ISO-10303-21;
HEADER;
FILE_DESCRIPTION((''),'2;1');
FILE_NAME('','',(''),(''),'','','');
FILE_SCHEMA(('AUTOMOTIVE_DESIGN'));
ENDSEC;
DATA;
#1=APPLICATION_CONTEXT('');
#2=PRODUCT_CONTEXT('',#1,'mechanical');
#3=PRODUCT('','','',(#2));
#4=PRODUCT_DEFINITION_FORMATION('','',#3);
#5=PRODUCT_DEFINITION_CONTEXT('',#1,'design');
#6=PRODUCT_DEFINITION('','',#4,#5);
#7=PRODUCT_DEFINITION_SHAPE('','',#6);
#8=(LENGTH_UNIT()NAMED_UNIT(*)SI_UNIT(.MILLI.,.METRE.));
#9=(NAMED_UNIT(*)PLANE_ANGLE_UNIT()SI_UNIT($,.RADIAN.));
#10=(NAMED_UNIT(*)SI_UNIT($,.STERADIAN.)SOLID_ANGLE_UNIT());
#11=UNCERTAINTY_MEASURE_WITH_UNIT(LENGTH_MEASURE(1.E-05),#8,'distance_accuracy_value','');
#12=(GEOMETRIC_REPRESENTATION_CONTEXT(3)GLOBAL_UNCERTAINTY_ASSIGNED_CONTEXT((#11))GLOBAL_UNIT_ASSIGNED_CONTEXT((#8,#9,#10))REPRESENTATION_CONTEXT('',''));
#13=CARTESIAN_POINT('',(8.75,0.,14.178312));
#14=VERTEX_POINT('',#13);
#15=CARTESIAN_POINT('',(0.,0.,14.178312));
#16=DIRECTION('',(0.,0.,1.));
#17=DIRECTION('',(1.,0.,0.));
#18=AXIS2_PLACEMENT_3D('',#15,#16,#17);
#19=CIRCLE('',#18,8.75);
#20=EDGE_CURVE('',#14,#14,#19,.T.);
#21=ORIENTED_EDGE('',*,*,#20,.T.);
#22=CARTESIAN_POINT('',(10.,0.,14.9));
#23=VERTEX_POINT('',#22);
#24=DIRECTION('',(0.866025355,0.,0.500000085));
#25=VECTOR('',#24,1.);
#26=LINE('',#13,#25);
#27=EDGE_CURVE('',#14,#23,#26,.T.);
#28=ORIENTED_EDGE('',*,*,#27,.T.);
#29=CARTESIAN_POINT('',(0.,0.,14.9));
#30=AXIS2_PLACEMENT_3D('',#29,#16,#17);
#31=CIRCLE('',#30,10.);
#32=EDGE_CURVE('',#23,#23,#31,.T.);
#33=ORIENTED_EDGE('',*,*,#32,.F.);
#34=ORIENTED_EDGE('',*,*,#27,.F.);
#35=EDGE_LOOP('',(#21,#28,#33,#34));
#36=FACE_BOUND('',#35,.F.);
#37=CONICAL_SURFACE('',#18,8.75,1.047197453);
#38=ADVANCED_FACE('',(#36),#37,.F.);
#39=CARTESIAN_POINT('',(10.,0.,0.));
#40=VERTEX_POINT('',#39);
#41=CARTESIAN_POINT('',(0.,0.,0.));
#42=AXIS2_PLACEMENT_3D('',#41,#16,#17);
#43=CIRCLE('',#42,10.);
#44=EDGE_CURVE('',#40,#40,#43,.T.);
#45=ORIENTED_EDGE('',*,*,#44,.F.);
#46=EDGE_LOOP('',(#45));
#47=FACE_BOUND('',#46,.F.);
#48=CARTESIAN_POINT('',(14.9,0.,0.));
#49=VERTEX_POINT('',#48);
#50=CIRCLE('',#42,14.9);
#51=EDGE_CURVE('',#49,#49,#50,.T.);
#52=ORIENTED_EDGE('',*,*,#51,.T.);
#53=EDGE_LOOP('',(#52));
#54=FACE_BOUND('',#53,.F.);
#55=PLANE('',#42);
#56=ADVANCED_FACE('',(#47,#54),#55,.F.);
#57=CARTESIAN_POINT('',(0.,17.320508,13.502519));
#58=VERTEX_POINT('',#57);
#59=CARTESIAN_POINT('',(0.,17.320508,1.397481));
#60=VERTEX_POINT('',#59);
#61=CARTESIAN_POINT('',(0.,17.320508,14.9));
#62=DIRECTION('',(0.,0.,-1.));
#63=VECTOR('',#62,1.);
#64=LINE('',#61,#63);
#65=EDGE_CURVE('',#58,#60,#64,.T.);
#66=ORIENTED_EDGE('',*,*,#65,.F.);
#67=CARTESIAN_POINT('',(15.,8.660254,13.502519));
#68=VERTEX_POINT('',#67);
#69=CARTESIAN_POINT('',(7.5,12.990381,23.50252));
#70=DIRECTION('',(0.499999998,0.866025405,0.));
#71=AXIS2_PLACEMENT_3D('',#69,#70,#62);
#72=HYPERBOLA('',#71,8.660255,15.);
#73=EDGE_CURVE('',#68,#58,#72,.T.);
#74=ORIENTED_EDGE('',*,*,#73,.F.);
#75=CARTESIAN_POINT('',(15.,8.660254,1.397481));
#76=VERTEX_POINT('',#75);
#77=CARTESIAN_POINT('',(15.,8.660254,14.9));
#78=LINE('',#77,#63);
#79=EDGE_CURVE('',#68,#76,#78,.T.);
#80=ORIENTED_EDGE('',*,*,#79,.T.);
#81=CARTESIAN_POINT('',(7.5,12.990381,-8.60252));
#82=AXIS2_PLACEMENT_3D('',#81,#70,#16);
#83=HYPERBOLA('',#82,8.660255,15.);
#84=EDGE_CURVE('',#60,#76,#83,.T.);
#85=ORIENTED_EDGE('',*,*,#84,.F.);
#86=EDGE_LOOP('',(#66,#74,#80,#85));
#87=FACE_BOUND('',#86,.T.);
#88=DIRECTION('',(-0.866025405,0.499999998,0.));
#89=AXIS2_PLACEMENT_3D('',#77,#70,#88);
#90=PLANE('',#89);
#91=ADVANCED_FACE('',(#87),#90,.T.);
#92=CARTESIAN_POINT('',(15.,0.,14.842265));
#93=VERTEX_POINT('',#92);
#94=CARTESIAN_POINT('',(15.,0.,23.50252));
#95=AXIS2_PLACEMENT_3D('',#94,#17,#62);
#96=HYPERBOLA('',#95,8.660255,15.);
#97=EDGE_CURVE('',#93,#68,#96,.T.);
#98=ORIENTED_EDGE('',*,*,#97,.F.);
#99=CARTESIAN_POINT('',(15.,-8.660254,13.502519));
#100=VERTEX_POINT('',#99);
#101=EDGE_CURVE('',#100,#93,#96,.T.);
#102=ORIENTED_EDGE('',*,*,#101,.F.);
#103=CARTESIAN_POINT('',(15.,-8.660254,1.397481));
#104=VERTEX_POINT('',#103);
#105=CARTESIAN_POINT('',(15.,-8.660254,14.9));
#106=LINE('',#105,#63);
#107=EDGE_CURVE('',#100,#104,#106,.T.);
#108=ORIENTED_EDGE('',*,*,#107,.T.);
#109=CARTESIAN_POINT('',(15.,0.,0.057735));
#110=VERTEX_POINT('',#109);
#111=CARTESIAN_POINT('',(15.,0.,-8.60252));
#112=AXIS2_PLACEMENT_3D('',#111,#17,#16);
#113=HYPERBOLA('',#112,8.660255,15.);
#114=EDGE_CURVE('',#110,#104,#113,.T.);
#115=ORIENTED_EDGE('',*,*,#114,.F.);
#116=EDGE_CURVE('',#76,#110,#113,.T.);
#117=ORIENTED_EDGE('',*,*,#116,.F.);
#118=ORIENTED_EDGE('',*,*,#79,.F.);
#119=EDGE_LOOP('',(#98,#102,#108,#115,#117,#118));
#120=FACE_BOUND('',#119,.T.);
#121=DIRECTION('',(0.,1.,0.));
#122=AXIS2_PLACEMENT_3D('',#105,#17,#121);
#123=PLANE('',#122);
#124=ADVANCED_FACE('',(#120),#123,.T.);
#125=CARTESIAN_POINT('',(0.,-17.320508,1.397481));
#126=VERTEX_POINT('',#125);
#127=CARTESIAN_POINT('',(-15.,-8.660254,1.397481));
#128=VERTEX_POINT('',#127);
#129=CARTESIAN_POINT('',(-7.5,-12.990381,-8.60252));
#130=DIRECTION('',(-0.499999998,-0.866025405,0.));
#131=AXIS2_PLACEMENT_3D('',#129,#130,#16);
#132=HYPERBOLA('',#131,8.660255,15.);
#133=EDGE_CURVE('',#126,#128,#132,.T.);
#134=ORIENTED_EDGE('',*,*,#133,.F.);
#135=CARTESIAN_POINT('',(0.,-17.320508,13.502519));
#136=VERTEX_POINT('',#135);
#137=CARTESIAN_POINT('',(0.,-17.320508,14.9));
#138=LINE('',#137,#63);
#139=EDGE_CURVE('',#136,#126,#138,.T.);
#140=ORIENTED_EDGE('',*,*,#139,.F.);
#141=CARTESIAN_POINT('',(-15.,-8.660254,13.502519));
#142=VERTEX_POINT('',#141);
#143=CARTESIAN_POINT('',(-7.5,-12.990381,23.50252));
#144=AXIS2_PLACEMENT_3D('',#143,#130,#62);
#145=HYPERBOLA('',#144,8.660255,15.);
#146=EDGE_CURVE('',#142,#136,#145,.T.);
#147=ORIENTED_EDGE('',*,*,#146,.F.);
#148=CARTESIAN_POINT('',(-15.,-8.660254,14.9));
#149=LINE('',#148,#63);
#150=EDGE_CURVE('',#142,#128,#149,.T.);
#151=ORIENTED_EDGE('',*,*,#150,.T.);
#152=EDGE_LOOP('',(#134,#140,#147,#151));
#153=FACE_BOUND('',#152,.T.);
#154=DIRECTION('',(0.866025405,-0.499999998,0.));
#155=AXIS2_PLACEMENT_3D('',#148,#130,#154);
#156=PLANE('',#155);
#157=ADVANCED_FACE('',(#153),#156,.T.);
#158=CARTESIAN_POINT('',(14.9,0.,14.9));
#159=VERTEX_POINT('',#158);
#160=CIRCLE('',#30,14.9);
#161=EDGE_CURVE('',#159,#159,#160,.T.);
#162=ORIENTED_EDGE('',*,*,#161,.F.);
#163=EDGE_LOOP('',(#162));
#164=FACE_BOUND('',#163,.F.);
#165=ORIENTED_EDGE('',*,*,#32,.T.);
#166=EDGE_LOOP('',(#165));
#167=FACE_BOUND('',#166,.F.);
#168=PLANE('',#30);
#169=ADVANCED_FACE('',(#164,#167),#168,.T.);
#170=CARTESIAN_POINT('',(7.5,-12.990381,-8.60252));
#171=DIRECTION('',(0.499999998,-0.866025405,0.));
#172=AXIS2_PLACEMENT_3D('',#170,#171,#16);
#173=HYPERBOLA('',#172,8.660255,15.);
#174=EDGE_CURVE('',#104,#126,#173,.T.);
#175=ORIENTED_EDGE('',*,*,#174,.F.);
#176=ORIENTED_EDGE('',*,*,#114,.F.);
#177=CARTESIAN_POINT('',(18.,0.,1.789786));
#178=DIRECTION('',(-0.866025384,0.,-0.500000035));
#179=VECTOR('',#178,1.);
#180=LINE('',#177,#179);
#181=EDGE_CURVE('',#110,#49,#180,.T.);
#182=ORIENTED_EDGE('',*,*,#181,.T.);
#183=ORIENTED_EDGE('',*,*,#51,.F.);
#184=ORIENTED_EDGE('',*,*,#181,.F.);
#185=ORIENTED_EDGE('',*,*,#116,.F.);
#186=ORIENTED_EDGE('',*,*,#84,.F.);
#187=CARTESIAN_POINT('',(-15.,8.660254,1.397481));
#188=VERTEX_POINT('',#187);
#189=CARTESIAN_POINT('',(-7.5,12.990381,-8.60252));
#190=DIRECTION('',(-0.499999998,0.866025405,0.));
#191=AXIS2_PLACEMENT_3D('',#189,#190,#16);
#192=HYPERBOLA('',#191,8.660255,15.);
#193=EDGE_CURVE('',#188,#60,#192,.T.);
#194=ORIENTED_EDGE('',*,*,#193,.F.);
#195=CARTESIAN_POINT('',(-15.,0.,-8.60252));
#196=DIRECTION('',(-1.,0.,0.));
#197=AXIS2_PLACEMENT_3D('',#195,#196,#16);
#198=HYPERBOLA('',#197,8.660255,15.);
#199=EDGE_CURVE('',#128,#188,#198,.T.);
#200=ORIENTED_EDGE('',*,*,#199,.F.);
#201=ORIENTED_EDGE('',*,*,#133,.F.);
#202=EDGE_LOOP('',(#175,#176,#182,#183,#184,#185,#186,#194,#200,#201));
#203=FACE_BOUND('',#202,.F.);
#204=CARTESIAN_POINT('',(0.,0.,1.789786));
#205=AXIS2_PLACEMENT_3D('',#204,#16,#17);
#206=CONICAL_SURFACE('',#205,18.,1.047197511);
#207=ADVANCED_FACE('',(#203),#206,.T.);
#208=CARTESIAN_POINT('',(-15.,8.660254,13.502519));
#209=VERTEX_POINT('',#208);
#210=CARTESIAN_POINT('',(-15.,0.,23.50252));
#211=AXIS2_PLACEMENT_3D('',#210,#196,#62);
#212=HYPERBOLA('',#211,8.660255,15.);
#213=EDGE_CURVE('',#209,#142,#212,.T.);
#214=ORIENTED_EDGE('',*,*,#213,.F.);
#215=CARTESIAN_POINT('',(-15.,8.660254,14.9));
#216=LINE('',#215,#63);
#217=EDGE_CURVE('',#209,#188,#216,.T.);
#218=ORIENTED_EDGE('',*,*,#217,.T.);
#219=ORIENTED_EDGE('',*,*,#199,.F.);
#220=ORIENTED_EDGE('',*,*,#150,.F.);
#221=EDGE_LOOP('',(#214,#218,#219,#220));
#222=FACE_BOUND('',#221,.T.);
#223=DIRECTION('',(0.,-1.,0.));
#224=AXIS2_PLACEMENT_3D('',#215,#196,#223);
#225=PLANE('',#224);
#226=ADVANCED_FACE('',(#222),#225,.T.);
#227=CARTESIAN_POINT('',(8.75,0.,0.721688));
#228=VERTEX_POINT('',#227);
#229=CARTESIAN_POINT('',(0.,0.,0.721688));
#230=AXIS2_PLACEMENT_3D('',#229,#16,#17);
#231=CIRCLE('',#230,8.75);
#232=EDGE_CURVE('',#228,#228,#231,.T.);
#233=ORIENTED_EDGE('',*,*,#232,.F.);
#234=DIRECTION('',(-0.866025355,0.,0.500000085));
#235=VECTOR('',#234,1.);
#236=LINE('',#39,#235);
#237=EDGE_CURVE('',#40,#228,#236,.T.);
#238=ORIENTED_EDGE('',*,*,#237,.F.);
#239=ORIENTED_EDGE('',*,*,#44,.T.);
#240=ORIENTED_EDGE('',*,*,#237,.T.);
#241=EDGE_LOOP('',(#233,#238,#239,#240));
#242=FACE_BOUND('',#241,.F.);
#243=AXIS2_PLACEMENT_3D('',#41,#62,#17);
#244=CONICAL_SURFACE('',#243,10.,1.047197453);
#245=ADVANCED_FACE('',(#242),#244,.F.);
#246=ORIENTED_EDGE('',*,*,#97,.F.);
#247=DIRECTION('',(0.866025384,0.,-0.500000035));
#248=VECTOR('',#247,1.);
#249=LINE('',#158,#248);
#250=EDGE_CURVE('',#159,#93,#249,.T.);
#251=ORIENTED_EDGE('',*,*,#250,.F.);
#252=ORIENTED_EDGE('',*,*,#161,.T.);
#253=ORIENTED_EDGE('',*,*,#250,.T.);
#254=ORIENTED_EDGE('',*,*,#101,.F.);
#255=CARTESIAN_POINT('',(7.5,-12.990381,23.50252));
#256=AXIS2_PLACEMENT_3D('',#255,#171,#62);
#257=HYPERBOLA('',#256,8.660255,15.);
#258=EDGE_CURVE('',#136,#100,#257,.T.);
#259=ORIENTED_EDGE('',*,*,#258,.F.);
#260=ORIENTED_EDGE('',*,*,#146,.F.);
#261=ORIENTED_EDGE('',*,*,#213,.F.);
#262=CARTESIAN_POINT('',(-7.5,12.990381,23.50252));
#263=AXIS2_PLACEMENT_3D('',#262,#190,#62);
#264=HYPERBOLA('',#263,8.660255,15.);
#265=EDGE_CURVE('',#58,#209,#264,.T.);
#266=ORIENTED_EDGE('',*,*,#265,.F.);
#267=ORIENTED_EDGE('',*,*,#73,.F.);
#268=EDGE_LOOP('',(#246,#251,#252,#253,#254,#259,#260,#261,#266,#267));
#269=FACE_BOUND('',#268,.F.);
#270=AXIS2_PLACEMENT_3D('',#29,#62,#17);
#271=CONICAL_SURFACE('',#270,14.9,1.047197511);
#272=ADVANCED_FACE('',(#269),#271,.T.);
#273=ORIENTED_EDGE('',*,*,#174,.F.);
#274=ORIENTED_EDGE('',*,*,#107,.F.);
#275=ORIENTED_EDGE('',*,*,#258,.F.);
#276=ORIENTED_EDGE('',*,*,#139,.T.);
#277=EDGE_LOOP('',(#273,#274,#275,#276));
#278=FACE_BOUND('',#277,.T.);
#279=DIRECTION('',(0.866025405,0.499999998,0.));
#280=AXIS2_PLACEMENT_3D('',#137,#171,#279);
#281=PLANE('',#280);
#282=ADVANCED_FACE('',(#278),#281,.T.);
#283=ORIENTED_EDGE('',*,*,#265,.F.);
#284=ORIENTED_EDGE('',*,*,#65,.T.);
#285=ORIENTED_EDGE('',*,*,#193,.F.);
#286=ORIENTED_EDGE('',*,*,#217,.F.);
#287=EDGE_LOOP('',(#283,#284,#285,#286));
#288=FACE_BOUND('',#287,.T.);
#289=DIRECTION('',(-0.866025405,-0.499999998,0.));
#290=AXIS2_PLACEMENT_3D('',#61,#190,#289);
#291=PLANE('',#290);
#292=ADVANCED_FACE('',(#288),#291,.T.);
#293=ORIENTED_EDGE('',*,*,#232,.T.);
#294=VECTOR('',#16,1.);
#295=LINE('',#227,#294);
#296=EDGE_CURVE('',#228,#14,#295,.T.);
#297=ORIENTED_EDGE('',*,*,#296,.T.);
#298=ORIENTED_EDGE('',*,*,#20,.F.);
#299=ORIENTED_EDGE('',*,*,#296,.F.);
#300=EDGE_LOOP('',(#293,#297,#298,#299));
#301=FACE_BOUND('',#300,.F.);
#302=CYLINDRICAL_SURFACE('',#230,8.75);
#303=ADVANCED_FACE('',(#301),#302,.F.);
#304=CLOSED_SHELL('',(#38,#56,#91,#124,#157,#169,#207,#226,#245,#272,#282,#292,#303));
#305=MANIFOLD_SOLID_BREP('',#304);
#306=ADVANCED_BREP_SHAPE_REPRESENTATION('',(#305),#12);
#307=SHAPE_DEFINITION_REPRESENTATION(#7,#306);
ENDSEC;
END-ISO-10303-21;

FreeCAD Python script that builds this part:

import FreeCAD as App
import Part
import Sketcher

V = App.Vector
Q = App.Units.Quantity


def add_polygon(sketch, points):
    """Adds a closed chain of lines whose ends are joined by coincident constraints."""
    first, n = sketch.GeometryCount, len(points)
    for a, b in zip(points, points[1:] + points[:1]):
        sketch.addGeometry(Part.LineSegment(App.Vector(*a, 0), App.Vector(*b, 0)), False)
    for i in range(n):
        sketch.addConstraint(Sketcher.Constraint("Coincident", first + i, 2, first + (i + 1) % n, 1))

doc = App.newDocument("Part")
body = doc.addObject("PartDesign::Body", "Body")

# Sketch on XZ plane
sketch1 = doc.addObject("Sketcher::SketchObject", "Sketch")
body.addObject(sketch1)
sketch1.AttachmentSupport = (doc.XZ_Plane, [""])
sketch1.MapMode = "FlatFace"
add_polygon(sketch1, [(8.75, 0.721688), (10, 0), (14.9, 0), (18, 1.789786), (18, 13.110214), (14.9, 14.9), (10, 14.9), (8.75, 14.178312)])  # lines 0-7
sketch1.addConstraint([
    Sketcher.Constraint("Horizontal", 1),
    Sketcher.Constraint("Vertical", 3),
    Sketcher.Constraint("Horizontal", 5),
    Sketcher.Constraint("Vertical", 7),
    Sketcher.Constraint("PointOnObject", 0, 2, -1),
    Sketcher.Constraint("Parallel", 0, 4),
    Sketcher.Constraint("Parallel", 2, 6),
    Sketcher.Constraint("Vertical", 1, 2, 4, 2),
    Sketcher.Constraint("Vertical", 0, 2, 5, 2),
    Sketcher.Constraint("Equal", 2, 4),
    Sketcher.Constraint("Angle", 0, Q("-30.000006 deg")),
    Sketcher.Constraint("DistanceX", 1, 1, 1, 2, Q("4.9 mm")),
    Sketcher.Constraint("DistanceX", -1, 1, 0, 2, Q("10 mm")),
    Sketcher.Constraint("DistanceX", -1, 1, 2, 2, Q("18 mm")),
    Sketcher.Constraint("DistanceY", -1, 1, 4, 2, Q("14.9 mm")),
    Sketcher.Constraint("DistanceX", -1, 1, 6, 2, Q("8.75 mm")),
])
revolution = doc.addObject("PartDesign::Revolution", "Revolution")
body.addObject(revolution)
revolution.Profile = sketch1
revolution.ReferenceAxis = (sketch1, ["V_Axis"])
revolution.Angle = 360

# Sketch on XY plane
sketch2 = doc.addObject("Sketcher::SketchObject", "Sketch001")
body.addObject(sketch2)
sketch2.AttachmentSupport = (doc.XY_Plane, [""])
sketch2.MapMode = "FlatFace"
sketch2.AttachmentOffset = App.Placement(V(0, 0, 14.9), App.Rotation())
sketch2.addGeometry(Part.Circle(V(0, 0, 0), V(0, 0, 1), 18), False)  # 0
add_polygon(sketch2, [(15, 8.660254), (15, -8.660254), (0, -17.320508), (-15, -8.660254), (-15, 8.660254), (0, 17.320508)])  # lines 1-6
sketch2.addConstraint([
    Sketcher.Constraint("Vertical", 1),
    Sketcher.Constraint("Vertical", 4),
    Sketcher.Constraint("Coincident", 0, 3, -1, 1),
    Sketcher.Constraint("Symmetric", 1, 2, 4, 2, -1, 1),
    Sketcher.Constraint("Symmetric", 2, 2, 5, 2, -1, 1),
    Sketcher.Constraint("PointOnObject", 2, 2, -2),
    Sketcher.Constraint("Parallel", 3, 6),
    Sketcher.Constraint("Horizontal", 1, 2, 3, 2),
    Sketcher.Constraint("Diameter", 0, Q("36 mm")),
    Sketcher.Constraint("Angle", 2, Q("-150 deg")),
    Sketcher.Constraint("DistanceX", -1, 1, 1, 2, Q("15 mm")),
    Sketcher.Constraint("DistanceY", 1, 2, 1, 1, Q("17.320508 mm")),
])
pocket1 = doc.addObject("PartDesign::Pocket", "Pocket")
body.addObject(pocket1)
pocket1.Profile = sketch2
pocket1.Length = 14.9

doc.recompute()
